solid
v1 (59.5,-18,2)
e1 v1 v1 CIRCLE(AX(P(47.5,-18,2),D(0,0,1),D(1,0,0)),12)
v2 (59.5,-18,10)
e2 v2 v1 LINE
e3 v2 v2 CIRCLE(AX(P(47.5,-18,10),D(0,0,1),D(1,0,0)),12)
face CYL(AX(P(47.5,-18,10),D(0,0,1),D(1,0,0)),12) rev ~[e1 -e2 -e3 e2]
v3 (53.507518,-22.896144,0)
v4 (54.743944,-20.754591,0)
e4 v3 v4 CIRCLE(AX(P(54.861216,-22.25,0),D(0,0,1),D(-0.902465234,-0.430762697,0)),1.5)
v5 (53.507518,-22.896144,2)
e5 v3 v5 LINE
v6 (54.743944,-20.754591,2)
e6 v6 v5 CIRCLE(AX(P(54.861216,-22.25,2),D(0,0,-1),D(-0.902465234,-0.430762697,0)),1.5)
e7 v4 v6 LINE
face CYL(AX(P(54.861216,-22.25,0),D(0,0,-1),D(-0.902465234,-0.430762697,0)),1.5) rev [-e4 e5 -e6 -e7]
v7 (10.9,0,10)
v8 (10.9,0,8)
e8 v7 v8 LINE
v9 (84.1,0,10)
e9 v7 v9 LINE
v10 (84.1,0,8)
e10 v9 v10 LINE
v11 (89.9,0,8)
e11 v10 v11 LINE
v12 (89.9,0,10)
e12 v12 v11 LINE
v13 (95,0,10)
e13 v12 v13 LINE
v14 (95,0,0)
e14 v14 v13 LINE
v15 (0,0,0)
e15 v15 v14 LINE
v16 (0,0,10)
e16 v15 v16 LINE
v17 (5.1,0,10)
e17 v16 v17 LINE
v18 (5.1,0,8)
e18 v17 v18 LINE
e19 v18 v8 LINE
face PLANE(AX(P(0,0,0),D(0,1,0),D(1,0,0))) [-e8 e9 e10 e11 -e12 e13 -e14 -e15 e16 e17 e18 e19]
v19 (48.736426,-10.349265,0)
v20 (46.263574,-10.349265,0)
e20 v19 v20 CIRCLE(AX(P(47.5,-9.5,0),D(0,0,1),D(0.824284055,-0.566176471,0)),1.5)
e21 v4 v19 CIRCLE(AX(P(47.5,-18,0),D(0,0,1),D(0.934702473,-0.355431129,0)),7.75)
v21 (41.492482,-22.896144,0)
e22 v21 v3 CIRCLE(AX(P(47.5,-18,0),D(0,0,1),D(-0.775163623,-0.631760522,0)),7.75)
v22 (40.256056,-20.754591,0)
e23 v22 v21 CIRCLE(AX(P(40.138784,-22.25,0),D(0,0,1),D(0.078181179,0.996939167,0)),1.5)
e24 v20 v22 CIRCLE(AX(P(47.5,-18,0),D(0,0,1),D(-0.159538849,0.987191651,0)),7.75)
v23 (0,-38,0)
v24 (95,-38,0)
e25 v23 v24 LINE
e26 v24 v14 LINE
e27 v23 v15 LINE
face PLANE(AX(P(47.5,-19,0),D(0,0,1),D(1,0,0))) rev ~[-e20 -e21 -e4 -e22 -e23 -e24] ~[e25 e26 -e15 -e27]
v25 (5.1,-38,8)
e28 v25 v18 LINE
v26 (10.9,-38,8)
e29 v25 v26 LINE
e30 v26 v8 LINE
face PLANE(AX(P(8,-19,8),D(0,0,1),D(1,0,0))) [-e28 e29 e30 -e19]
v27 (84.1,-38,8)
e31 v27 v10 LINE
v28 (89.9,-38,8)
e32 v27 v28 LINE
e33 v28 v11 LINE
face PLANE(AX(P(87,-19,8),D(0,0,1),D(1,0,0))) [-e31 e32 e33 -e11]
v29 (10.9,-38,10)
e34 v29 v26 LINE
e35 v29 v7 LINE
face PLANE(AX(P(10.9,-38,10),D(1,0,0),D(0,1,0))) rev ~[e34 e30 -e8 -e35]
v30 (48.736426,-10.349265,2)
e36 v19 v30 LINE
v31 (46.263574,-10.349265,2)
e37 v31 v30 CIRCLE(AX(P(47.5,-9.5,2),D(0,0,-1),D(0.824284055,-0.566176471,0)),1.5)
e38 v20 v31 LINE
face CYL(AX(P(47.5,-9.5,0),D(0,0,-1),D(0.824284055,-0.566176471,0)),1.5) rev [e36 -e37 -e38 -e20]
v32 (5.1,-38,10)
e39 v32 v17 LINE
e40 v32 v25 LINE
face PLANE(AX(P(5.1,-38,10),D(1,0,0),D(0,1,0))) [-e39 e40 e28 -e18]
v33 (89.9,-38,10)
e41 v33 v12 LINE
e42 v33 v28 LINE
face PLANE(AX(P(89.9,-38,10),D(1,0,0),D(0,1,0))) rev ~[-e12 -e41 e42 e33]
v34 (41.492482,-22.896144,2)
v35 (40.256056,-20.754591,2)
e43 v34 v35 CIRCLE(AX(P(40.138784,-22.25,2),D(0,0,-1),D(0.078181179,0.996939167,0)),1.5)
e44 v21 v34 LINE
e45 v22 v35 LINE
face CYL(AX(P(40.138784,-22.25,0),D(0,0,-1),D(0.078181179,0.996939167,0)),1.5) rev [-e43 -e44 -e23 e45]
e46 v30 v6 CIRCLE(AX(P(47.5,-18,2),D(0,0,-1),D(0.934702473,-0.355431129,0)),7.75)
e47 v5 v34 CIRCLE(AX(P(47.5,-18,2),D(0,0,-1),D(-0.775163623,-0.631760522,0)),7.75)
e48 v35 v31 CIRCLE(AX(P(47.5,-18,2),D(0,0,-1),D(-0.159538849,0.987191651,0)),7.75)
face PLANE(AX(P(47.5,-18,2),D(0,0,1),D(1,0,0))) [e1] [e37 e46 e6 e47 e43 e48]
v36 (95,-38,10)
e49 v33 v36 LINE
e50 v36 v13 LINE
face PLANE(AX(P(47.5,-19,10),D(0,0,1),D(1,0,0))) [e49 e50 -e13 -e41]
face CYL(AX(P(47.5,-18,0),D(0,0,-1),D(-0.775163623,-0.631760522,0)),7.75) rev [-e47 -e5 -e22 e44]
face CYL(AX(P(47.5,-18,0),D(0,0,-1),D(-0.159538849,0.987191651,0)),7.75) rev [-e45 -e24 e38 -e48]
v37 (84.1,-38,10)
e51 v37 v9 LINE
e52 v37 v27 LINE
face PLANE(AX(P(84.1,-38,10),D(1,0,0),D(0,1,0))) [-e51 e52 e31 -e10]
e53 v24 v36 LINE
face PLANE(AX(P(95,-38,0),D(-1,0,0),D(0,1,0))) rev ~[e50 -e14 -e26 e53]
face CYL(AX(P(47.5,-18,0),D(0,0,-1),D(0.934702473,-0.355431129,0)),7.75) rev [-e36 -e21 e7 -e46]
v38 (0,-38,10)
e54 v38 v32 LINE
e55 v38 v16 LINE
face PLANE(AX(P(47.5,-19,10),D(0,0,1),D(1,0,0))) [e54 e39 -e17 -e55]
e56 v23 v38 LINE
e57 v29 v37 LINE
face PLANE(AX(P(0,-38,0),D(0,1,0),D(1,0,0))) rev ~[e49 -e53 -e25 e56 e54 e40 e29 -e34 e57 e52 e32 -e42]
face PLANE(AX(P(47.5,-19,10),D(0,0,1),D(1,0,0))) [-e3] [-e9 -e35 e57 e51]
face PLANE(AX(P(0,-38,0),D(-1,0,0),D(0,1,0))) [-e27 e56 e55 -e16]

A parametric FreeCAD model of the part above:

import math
import FreeCAD as App
import Part
import Sketcher
from FreeCAD import Vector

doc = App.newDocument("Part")
body = doc.addObject("PartDesign::Body", "Body")

sketch1 = body.newObject("Sketcher::SketchObject", "Sketch")
sketch1.AttachmentSupport = (doc.getObject("XY_Plane"), [""])
sketch1.MapMode = "FlatFace"
sketch1.addGeometry(Part.LineSegment(Vector(0, 0, 0), Vector(0, -38, 0)), False)
sketch1.addGeometry(Part.LineSegment(Vector(0, -38, 0), Vector(95, -38, 0)), False)
sketch1.addGeometry(Part.LineSegment(Vector(95, -38, 0), Vector(95, 0, 0)), False)
sketch1.addGeometry(Part.LineSegment(Vector(95, 0, 0), Vector(0, 0, 0)), False)
sketch1.addGeometry(Part.ArcOfCircle(Part.Circle(Vector(47.5, -18, 0), Vector(0, 0, 1), 7.8), math.radians(99), math.radians(201)), False)
sketch1.addGeometry(Part.ArcOfCircle(Part.Circle(Vector(47.5, -9.5, 0), Vector(0, 0, 1), 1.5), math.radians(-34), math.radians(214)), False)
sketch1.addGeometry(Part.ArcOfCircle(Part.Circle(Vector(47.5, -18, 0), Vector(0, 0, 1), 7.8), math.radians(-21), math.radians(81)), False)
sketch1.addGeometry(Part.ArcOfCircle(Part.Circle(Vector(54.9, -22.2, 0), Vector(0, 0, 1), 1.5), math.radians(-154), math.radians(94)), False)
sketch1.addGeometry(Part.ArcOfCircle(Part.Circle(Vector(47.5, -18, 0), Vector(0, 0, 1), 7.8), math.radians(-141), math.radians(-39)), False)
sketch1.addGeometry(Part.ArcOfCircle(Part.Circle(Vector(40.1, -22.2, 0), Vector(0, 0, 1), 1.5), math.radians(86), math.radians(334)), False)
sketch1.addConstraint(Sketcher.Constraint("Coincident", 0, 2, 1, 1))
sketch1.addConstraint(Sketcher.Constraint("Coincident", 1, 2, 2, 1))
sketch1.addConstraint(Sketcher.Constraint("Coincident", 2, 2, 3, 1))
sketch1.addConstraint(Sketcher.Constraint("Coincident", 3, 2, 0, 1))
sketch1.addConstraint(Sketcher.Constraint("Coincident", 4, 1, 5, 2))
sketch1.addConstraint(Sketcher.Constraint("Coincident", 5, 1, 6, 2))
sketch1.addConstraint(Sketcher.Constraint("Coincident", 6, 1, 7, 2))
sketch1.addConstraint(Sketcher.Constraint("Coincident", 7, 1, 8, 2))
sketch1.addConstraint(Sketcher.Constraint("Coincident", 8, 1, 9, 2))
sketch1.addConstraint(Sketcher.Constraint("Coincident", 9, 1, 4, 2))
sketch1.addConstraint(Sketcher.Constraint("Vertical", 0))
sketch1.addConstraint(Sketcher.Constraint("Horizontal", 1))
sketch1.addConstraint(Sketcher.Constraint("Vertical", 2))
sketch1.addConstraint(Sketcher.Constraint("Horizontal", 3))
sketch1.addConstraint(Sketcher.Constraint("Coincident", 3, 2, -1, 1))
sketch1.addConstraint(Sketcher.Constraint("Coincident", 6, 3, 4, 3))
sketch1.addConstraint(Sketcher.Constraint("Coincident", 8, 3, 4, 3))
sketch1.addConstraint(Sketcher.Constraint("Equal", 4, 6))
sketch1.addConstraint(Sketcher.Constraint("Equal", 5, 7))
sketch1.addConstraint(Sketcher.Constraint("Equal", 6, 8))
sketch1.addConstraint(Sketcher.Constraint("Equal", 7, 9))
sketch1.addConstraint(Sketcher.Constraint("Horizontal", 7, 3, 9, 3))
sketch1.addConstraint(Sketcher.Constraint("Horizontal", 4, 1, 5, 1))
sketch1.addConstraint(Sketcher.Constraint("Horizontal", 7, 1, 8, 1))
sketch1.addConstraint(Sketcher.Constraint("Radius", 5, 1.5))
sketch1.addConstraint(Sketcher.Constraint("DistanceX", 1, 1, 1, 2, 95.0))
sketch1.addConstraint(Sketcher.Constraint("DistanceY", 0, 2, 0, 1, 38.0))
sketch1.addConstraint(Sketcher.Constraint("Radius", 4, 7.75))
sketch1.addConstraint(Sketcher.Constraint("DistanceY", 4, 3, -1, 1, 18.0))
sketch1.addConstraint(Sketcher.Constraint("DistanceX", -1, 1, 4, 3, 47.5))
sketch1.addConstraint(Sketcher.Constraint("DistanceY", 5, 3, -1, 1, 9.5))
sketch1.addConstraint(Sketcher.Constraint("DistanceY", 7, 3, -1, 1, 22.25))
sketch1.addConstraint(Sketcher.Constraint("DistanceY", 6, 1, -1, 1, 20.754591))
pad1 = body.newObject("PartDesign::Pad", "Pad")
pad1.Profile = sketch1
pad1.Length = 10

sketch2 = body.newObject("Sketcher::SketchObject", "Sketch001")
sketch2.AttachmentSupport = (doc.getObject("XY_Plane"), [""])
sketch2.MapMode = "FlatFace"
sketch2.AttachmentOffset = App.Placement(Vector(0, 0, 10), App.Rotation())
sketch2.addGeometry(Part.Circle(Vector(48, -18, 0), Vector(0, 0, 1), 12), False)
sketch2.addConstraint(Sketcher.Constraint("Diameter", 0, 24.0))
sketch2.addConstraint(Sketcher.Constraint("DistanceY", 0, 3, -1, 1, 18.0))
sketch2.addConstraint(Sketcher.Constraint("DistanceX", -1, 1, 0, 3, 47.5))
pocket1 = body.newObject("PartDesign::Pocket", "Pocket")
pocket1.Profile = sketch2
pocket1.Length = 8

sketch3 = body.newObject("Sketcher::SketchObject", "Sketch002")
sketch3.AttachmentSupport = (doc.getObject("XY_Plane"), [""])
sketch3.MapMode = "FlatFace"
sketch3.AttachmentOffset = App.Placement(Vector(0, 0, 10), App.Rotation())
sketch3.addGeometry(Part.LineSegment(Vector(5, 0, 0), Vector(5, -38, 0)), False)
sketch3.addGeometry(Part.LineSegment(Vector(5, -38, 0), Vector(11, -38, 0)), False)
sketch3.addGeometry(Part.LineSegment(Vector(11, -38, 0), Vector(11, 0, 0)), False)
sketch3.addGeometry(Part.LineSegment(Vector(11, 0, 0), Vector(5, 0, 0)), False)
sketch3.addGeometry(Part.LineSegment(Vector(84, 0, 0), Vector(84, -38, 0)), False)
sketch3.addGeometry(Part.LineSegment(Vector(84, -38, 0), Vector(90, -38, 0)), False)
sketch3.addGeometry(Part.LineSegment(Vector(90, -38, 0), Vector(90, 0, 0)), False)
sketch3.addGeometry(Part.LineSegment(Vector(90, 0, 0), Vector(84, 0, 0)), False)
sketch3.addConstraint(Sketcher.Constraint("Coincident", 0, 2, 1, 1))
sketch3.addConstraint(Sketcher.Constraint("Coincident", 1, 2, 2, 1))
sketch3.addConstraint(Sketcher.Constraint("Coincident", 2, 2, 3, 1))
sketch3.addConstraint(Sketcher.Constraint("Coincident", 3, 2, 0, 1))
sketch3.addConstraint(Sketcher.Constraint("Coincident", 4, 2, 5, 1))
sketch3.addConstraint(Sketcher.Constraint("Coincident", 5, 2, 6, 1))
sketch3.addConstraint(Sketcher.Constraint("Coincident", 6, 2, 7, 1))
sketch3.addConstraint(Sketcher.Constraint("Coincident", 7, 2, 4, 1))
sketch3.addConstraint(Sketcher.Constraint("Vertical", 0))
sketch3.addConstraint(Sketcher.Constraint("Horizontal", 1))
sketch3.addConstraint(Sketcher.Constraint("Vertical", 2))
sketch3.addConstraint(Sketcher.Constraint("Horizontal", 3))
sketch3.addConstraint(Sketcher.Constraint("Vertical", 4))
sketch3.addConstraint(Sketcher.Constraint("Horizontal", 5))
sketch3.addConstraint(Sketcher.Constraint("Vertical", 6))
sketch3.addConstraint(Sketcher.Constraint("Horizontal", 7))
sketch3.addConstraint(Sketcher.Constraint("PointOnObject", 2, 2, -1))
sketch3.addConstraint(Sketcher.Constraint("PointOnObject", 6, 2, -1))
sketch3.addConstraint(Sketcher.Constraint("Horizontal", 1, 2, 4, 2))
sketch3.addConstraint(Sketcher.Constraint("Equal", 3, 5))
sketch3.addConstraint(Sketcher.Constraint("DistanceY", 0, 2, 0, 1, 38.0))
sketch3.addConstraint(Sketcher.Constraint("DistanceX", 1, 1, 1, 2, 5.8))
sketch3.addConstraint(Sketcher.Constraint("DistanceX", 0, 2, 4, 2, 79.0))
sketch3.addConstraint(Sketcher.Constraint("DistanceX", -1, 1, 0, 2, 5.1))
pocket2 = body.newObject("PartDesign::Pocket", "Pocket001")
pocket2.Profile = sketch3
pocket2.Length = 2

doc.recompute()
